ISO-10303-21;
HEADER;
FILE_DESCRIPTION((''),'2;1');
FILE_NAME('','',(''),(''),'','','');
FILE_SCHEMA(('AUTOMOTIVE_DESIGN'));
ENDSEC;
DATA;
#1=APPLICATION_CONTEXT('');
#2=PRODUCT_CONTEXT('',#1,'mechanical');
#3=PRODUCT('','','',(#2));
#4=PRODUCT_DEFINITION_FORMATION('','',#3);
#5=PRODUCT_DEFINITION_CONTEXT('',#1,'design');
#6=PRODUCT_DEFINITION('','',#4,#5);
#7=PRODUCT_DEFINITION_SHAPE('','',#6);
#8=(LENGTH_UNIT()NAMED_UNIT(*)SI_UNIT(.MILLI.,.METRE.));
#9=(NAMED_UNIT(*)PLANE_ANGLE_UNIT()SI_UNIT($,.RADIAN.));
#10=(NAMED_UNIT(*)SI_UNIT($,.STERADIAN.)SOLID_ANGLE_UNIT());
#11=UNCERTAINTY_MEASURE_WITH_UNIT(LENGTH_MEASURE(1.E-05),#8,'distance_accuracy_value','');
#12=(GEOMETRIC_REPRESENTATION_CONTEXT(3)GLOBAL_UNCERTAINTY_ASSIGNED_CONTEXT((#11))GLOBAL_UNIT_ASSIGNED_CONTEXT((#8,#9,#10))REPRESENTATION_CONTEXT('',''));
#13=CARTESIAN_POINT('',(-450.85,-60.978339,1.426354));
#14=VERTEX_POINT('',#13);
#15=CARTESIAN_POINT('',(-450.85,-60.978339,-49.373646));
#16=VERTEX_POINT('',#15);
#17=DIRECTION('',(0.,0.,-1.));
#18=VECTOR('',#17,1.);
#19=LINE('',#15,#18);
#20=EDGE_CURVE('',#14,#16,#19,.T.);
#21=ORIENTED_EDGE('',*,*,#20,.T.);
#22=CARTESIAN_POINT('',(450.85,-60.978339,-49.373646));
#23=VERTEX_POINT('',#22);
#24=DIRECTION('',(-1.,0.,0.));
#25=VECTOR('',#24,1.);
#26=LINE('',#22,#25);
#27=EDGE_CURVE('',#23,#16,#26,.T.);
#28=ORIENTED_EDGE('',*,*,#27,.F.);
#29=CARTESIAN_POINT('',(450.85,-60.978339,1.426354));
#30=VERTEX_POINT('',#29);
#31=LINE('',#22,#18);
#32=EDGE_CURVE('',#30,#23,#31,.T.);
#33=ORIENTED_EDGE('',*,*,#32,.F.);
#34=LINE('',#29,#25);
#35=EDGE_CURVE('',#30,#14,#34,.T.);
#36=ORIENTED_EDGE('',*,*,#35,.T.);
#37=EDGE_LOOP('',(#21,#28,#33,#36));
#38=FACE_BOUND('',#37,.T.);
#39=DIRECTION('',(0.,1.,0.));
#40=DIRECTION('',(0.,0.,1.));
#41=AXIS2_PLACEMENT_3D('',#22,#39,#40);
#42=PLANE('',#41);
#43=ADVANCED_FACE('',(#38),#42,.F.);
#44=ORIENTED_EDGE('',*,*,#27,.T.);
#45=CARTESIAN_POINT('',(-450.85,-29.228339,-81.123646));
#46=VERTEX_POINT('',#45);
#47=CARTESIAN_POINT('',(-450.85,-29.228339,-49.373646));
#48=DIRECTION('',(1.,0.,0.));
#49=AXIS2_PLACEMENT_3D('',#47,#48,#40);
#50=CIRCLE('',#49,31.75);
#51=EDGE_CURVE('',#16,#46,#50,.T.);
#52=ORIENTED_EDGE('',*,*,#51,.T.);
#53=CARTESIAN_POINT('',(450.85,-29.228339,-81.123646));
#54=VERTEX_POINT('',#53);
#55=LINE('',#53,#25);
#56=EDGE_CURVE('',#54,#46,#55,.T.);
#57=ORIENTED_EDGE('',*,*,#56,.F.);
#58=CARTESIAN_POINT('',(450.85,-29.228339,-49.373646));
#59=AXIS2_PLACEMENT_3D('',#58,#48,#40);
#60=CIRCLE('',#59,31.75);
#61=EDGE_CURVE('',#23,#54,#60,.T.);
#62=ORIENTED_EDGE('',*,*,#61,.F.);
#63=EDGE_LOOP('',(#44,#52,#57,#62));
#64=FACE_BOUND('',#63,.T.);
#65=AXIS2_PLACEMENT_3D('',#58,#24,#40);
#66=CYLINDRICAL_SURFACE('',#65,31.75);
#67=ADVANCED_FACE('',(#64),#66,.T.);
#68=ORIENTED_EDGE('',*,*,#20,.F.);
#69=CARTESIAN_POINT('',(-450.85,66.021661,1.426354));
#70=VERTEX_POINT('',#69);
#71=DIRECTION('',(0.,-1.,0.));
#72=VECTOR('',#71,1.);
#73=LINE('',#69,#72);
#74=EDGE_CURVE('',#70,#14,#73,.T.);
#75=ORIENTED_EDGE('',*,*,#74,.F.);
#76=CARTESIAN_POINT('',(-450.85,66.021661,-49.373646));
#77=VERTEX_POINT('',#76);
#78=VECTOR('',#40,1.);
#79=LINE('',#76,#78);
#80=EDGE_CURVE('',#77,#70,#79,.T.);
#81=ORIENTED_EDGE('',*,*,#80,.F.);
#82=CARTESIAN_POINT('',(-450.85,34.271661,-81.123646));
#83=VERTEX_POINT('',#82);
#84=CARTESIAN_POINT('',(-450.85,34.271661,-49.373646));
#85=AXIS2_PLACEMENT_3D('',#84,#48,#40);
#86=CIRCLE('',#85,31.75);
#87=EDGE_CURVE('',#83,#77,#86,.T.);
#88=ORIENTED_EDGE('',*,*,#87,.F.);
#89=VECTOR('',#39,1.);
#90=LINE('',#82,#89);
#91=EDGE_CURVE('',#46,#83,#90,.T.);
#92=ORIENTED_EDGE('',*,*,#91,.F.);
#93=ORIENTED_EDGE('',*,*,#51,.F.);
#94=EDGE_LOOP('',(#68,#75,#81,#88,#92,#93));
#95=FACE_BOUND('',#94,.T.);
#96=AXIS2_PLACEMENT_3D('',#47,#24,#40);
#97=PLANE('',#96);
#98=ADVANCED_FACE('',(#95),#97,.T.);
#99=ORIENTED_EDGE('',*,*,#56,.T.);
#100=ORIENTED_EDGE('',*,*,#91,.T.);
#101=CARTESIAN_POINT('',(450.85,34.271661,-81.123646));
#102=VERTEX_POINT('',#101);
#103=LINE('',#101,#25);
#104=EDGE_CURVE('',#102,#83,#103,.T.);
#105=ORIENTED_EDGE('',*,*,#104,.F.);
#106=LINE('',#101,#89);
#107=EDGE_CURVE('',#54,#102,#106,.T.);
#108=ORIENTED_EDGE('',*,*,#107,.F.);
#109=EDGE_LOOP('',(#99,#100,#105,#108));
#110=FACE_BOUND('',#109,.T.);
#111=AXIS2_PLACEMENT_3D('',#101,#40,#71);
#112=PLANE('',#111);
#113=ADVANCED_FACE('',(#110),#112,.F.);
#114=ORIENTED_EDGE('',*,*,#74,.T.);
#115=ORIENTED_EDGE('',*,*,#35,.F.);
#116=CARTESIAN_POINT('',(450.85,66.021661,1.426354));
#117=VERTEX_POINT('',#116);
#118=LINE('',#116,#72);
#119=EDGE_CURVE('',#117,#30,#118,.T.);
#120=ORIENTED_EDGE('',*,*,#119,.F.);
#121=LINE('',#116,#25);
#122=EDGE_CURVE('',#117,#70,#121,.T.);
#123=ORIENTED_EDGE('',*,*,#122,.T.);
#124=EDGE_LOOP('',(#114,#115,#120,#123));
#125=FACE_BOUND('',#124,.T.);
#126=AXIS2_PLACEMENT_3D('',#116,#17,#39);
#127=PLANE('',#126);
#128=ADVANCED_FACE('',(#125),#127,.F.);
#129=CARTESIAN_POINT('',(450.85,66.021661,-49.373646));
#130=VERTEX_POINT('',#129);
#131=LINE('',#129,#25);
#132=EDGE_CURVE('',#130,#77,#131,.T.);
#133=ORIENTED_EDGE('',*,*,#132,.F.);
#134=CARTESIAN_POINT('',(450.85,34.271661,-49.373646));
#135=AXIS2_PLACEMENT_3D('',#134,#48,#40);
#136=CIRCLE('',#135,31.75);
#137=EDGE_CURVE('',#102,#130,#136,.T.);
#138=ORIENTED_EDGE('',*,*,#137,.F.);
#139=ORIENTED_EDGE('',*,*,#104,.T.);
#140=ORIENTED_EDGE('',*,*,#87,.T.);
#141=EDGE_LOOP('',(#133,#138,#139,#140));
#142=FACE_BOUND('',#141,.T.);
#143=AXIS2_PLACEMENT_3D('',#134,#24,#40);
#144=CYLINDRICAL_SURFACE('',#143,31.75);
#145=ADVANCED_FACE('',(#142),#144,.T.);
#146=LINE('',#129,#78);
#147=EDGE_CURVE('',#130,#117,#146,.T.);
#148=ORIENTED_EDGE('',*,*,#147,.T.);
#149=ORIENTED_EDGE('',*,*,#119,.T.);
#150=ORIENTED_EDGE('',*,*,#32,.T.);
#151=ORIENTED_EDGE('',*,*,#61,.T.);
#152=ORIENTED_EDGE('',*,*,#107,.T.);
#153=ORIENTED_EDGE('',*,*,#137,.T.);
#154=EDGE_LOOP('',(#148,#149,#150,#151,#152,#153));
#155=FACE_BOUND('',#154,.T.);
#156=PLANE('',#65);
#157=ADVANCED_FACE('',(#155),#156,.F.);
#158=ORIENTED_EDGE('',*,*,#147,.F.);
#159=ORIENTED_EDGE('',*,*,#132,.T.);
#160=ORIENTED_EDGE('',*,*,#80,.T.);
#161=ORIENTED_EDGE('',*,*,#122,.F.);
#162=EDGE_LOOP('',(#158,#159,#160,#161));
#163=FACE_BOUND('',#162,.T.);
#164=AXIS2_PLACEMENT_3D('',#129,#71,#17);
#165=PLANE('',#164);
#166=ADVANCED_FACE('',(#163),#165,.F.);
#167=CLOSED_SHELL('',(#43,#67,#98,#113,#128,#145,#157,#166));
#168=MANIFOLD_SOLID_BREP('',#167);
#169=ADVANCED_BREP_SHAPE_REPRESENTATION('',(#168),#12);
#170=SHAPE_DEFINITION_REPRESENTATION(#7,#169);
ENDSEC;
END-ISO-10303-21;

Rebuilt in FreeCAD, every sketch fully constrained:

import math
import FreeCAD as App
import Part
import Sketcher

V = App.Vector
Q = App.Units.Quantity

doc = App.newDocument("Part")
body = doc.addObject("PartDesign::Body", "Body")

sketch1 = body.newObject("Sketcher::SketchObject", "Sketch")
sketch1.AttachmentSupport = (doc.getObject("YZ_Plane"), [""])
sketch1.MapMode = "FlatFace"
sketch1.addGeometry(Part.LineSegment(V(66.021661, -49.373646, 0), V(66.021661, 1.426354, 0)), False)
sketch1.addGeometry(Part.LineSegment(V(66.021661, 1.426354, 0), V(-60.978339, 1.426354, 0)), False)
sketch1.addGeometry(Part.LineSegment(V(-60.978339, 1.426354, 0), V(-60.978339, -49.373646, 0)), False)
sketch1.addGeometry(Part.ArcOfCircle(Part.Circle(V(-29.228339, -49.373646, 0), V(0, 0, 1), 31.75), math.radians(180), math.radians(270)), False)
sketch1.addGeometry(Part.LineSegment(V(-29.228339, -81.123646, 0), V(34.271661, -81.123646, 0)), False)
sketch1.addGeometry(Part.ArcOfCircle(Part.Circle(V(34.271661, -49.373646, 0), V(0, 0, 1), 31.75), math.radians(-90), math.radians(0)), False)
sketch1.addConstraint(Sketcher.Constraint("Coincident", 0, 2, 1, 1))
sketch1.addConstraint(Sketcher.Constraint("Coincident", 1, 2, 2, 1))
sketch1.addConstraint(Sketcher.Constraint("Tangent", 2, 2, 3, 1))
sketch1.addConstraint(Sketcher.Constraint("Tangent", 3, 2, 4, 1))
sketch1.addConstraint(Sketcher.Constraint("Tangent", 4, 2, 5, 1))
sketch1.addConstraint(Sketcher.Constraint("Tangent", 5, 2, 0, 1))
sketch1.addConstraint(Sketcher.Constraint("Vertical", 0))
sketch1.addConstraint(Sketcher.Constraint("Horizontal", 1))
sketch1.addConstraint(Sketcher.Constraint("Vertical", 2))
sketch1.addConstraint(Sketcher.Constraint("Horizontal", 4))
sketch1.addConstraint(Sketcher.Constraint("Equal", 3, 5))
sketch1.addConstraint(Sketcher.Constraint("DistanceX", 1, 2, 1, 1, Q("5 in")))
sketch1.addConstraint(Sketcher.Constraint("DistanceY", 0, 1, 0, 2, Q("2 in")))
sketch1.addConstraint(Sketcher.Constraint("Radius", 3, Q("1.25 in")))
sketch1.addConstraint(Sketcher.Constraint("DistanceX", 3, 3, -1, 1, Q("29.228339 mm")))
sketch1.addConstraint(Sketcher.Constraint("DistanceY", 3, 3, -1, 1, Q("49.373646 mm")))
pad1 = body.newObject("PartDesign::Pad", "Pad")
pad1.Profile = sketch1
pad1.Length = Q("35.5 in")
pad1.Midplane = True

doc.recompute()
